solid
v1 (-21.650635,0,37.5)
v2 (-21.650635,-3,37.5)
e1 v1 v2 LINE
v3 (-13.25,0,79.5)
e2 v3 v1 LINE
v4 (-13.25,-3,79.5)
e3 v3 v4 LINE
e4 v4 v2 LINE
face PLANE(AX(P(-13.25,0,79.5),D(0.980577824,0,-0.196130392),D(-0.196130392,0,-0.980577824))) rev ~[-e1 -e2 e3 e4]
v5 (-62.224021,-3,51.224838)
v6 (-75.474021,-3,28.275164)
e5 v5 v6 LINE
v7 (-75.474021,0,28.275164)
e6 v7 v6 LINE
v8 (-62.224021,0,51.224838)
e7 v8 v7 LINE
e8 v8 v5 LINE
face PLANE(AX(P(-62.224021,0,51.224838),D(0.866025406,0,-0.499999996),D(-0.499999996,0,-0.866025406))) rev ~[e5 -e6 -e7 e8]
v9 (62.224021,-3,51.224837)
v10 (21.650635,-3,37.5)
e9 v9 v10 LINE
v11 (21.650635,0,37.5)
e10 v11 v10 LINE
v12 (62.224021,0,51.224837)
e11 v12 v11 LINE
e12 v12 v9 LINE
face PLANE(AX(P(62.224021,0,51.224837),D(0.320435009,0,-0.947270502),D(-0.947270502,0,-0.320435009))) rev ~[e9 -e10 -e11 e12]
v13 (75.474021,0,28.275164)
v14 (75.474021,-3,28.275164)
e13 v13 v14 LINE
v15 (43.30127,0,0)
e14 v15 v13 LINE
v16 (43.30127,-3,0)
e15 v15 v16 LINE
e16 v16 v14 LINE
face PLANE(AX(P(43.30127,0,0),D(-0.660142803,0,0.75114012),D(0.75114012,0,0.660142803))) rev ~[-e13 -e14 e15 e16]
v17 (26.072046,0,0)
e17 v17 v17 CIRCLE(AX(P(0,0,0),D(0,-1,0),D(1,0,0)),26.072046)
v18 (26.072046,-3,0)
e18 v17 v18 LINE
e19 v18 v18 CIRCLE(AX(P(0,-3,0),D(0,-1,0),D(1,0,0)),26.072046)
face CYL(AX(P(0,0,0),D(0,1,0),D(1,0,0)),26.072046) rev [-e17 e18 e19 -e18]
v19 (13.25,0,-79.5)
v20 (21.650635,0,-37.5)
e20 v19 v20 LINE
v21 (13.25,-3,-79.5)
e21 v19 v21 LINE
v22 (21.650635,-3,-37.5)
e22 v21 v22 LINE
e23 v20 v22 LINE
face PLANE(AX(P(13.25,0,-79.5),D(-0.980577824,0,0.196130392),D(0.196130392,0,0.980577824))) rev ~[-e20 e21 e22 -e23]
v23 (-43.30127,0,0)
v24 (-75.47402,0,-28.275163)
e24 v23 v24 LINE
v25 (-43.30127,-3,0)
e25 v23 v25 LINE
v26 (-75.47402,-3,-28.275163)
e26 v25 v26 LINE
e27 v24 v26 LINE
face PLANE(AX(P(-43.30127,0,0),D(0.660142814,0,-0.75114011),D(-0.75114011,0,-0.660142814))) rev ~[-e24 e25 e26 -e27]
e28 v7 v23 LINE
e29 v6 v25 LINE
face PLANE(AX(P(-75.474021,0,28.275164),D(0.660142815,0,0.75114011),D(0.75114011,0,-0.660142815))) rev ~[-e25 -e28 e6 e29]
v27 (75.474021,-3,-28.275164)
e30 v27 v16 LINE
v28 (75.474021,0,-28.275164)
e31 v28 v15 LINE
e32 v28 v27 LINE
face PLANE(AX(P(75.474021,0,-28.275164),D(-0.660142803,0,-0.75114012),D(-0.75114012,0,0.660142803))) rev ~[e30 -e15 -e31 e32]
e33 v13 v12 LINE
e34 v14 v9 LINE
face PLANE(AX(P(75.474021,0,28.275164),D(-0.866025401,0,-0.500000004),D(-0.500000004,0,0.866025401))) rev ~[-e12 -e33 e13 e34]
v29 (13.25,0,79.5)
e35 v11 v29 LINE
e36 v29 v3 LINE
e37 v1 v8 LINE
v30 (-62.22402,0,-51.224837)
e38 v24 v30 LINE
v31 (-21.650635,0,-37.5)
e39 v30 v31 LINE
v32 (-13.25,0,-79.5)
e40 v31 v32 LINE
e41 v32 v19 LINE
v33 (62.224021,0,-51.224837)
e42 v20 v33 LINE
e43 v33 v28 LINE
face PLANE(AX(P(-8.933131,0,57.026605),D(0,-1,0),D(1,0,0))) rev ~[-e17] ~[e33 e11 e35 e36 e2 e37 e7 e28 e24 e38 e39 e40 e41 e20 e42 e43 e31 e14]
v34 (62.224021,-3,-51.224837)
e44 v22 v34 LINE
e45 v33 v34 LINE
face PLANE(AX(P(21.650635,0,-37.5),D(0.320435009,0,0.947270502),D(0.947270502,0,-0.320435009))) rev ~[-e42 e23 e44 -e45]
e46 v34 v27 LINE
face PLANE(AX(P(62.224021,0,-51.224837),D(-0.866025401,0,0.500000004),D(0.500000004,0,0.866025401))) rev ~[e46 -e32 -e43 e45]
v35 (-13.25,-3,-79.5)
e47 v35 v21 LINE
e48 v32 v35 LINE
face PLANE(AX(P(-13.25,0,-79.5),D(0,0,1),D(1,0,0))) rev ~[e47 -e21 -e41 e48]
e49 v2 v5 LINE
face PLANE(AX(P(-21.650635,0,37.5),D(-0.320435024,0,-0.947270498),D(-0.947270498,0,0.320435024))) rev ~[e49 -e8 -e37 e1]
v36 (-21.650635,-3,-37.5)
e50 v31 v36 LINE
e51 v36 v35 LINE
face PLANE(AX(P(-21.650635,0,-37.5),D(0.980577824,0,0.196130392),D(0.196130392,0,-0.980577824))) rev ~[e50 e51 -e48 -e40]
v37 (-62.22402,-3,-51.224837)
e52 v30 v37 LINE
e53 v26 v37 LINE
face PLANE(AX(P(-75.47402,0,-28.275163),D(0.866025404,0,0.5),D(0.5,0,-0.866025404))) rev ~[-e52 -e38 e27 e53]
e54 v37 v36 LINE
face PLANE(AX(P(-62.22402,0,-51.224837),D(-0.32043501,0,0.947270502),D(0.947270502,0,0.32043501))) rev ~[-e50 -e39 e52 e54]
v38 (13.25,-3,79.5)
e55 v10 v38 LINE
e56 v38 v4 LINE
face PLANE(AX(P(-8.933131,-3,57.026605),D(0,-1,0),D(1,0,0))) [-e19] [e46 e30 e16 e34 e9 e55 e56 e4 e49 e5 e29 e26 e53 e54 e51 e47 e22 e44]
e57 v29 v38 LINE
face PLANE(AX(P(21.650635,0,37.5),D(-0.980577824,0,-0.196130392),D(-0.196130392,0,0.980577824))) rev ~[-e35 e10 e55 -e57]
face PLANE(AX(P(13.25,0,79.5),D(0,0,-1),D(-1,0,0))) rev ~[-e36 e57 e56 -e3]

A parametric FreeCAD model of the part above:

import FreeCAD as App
import Part
import Sketcher
from FreeCAD import Vector
Q = App.Units.Quantity

doc = App.newDocument("Part")
body = doc.addObject("PartDesign::Body", "Body")

sketch1 = body.newObject("Sketcher::SketchObject", "Sketch")
sketch1.AttachmentSupport = (doc.getObject("XZ_Plane"), [""])
sketch1.MapMode = "FlatFace"
sketch1.addGeometry(Part.LineSegment(Vector(-13.25, 79.5, 0), Vector(-21.650635, 37.5, 0)), False)
sketch1.addGeometry(Part.LineSegment(Vector(-21.650635, 37.5, 0), Vector(-62.224021, 51.224838, 0)), False)
sketch1.addGeometry(Part.LineSegment(Vector(-62.224021, 51.224838, 0), Vector(-75.474021, 28.275164, 0)), False)
sketch1.addGeometry(Part.LineSegment(Vector(-75.474021, 28.275164, 0), Vector(-43.30127, 0, 0)), False)
sketch1.addGeometry(Part.LineSegment(Vector(-43.30127, 0, 0), Vector(-75.47402, -28.275163, 0)), False)
sketch1.addGeometry(Part.LineSegment(Vector(-75.47402, -28.275163, 0), Vector(-62.22402, -51.224837, 0)), False)
sketch1.addGeometry(Part.LineSegment(Vector(-62.22402, -51.224837, 0), Vector(-21.650635, -37.5, 0)), False)
sketch1.addGeometry(Part.LineSegment(Vector(-21.650635, -37.5, 0), Vector(-13.25, -79.5, 0)), False)
sketch1.addGeometry(Part.LineSegment(Vector(-13.25, -79.5, 0), Vector(13.25, -79.5, 0)), False)
sketch1.addGeometry(Part.LineSegment(Vector(13.25, -79.5, 0), Vector(21.650635, -37.5, 0)), False)
sketch1.addGeometry(Part.LineSegment(Vector(21.650635, -37.5, 0), Vector(62.224021, -51.224837, 0)), False)
sketch1.addGeometry(Part.LineSegment(Vector(62.224021, -51.224837, 0), Vector(75.474021, -28.275164, 0)), False)
sketch1.addGeometry(Part.LineSegment(Vector(75.474021, -28.275164, 0), Vector(43.30127, 0, 0)), False)
sketch1.addGeometry(Part.LineSegment(Vector(43.30127, 0, 0), Vector(75.474021, 28.275164, 0)), False)
sketch1.addGeometry(Part.LineSegment(Vector(75.474021, 28.275164, 0), Vector(62.224021, 51.224837, 0)), False)
sketch1.addGeometry(Part.LineSegment(Vector(62.224021, 51.224837, 0), Vector(21.650635, 37.5, 0)), False)
sketch1.addGeometry(Part.LineSegment(Vector(21.650635, 37.5, 0), Vector(13.25, 79.5, 0)), False)
sketch1.addGeometry(Part.LineSegment(Vector(13.25, 79.5, 0), Vector(-13.25, 79.5, 0)), False)
sketch1.addGeometry(Part.Circle(Vector(0, 0, 0), Vector(0, 0, 1), 26.072046), False)
sketch1.addConstraint(Sketcher.Constraint("Coincident", 0, 2, 1, 1))
sketch1.addConstraint(Sketcher.Constraint("Coincident", 1, 2, 2, 1))
sketch1.addConstraint(Sketcher.Constraint("Coincident", 2, 2, 3, 1))
sketch1.addConstraint(Sketcher.Constraint("Coincident", 3, 2, 4, 1))
sketch1.addConstraint(Sketcher.Constraint("Coincident", 4, 2, 5, 1))
sketch1.addConstraint(Sketcher.Constraint("Coincident", 5, 2, 6, 1))
sketch1.addConstraint(Sketcher.Constraint("Coincident", 6, 2, 7, 1))
sketch1.addConstraint(Sketcher.Constraint("Coincident", 7, 2, 8, 1))
sketch1.addConstraint(Sketcher.Constraint("Coincident", 8, 2, 9, 1))
sketch1.addConstraint(Sketcher.Constraint("Coincident", 9, 2, 10, 1))
sketch1.addConstraint(Sketcher.Constraint("Coincident", 10, 2, 11, 1))
sketch1.addConstraint(Sketcher.Constraint("Coincident", 11, 2, 12, 1))
sketch1.addConstraint(Sketcher.Constraint("Coincident", 12, 2, 13, 1))
sketch1.addConstraint(Sketcher.Constraint("Coincident", 13, 2, 14, 1))
sketch1.addConstraint(Sketcher.Constraint("Coincident", 14, 2, 15, 1))
sketch1.addConstraint(Sketcher.Constraint("Coincident", 15, 2, 16, 1))
sketch1.addConstraint(Sketcher.Constraint("Coincident", 16, 2, 17, 1))
sketch1.addConstraint(Sketcher.Constraint("Coincident", 17, 2, 0, 1))
sketch1.addConstraint(Sketcher.Constraint("Horizontal", 8))
sketch1.addConstraint(Sketcher.Constraint("Horizontal", 17))
sketch1.addConstraint(Sketcher.Constraint("Coincident", 18, 3, -1, 1))
sketch1.addConstraint(Sketcher.Constraint("Symmetric", 0, 2, 9, 2, -1, 1))
sketch1.addConstraint(Sketcher.Constraint("Symmetric", 1, 2, 10, 2, -1, 1))
sketch1.addConstraint(Sketcher.Constraint("Symmetric", 2, 2, 11, 2, -1, 1))
sketch1.addConstraint(Sketcher.Constraint("Symmetric", 3, 2, 12, 2, -1, 1))
sketch1.addConstraint(Sketcher.Constraint("Symmetric", 4, 2, 13, 2, -1, 1))
sketch1.addConstraint(Sketcher.Constraint("Symmetric", 5, 2, 14, 2, -1, 1))
sketch1.addConstraint(Sketcher.Constraint("Symmetric", 6, 2, 15, 2, -1, 1))
sketch1.addConstraint(Sketcher.Constraint("Symmetric", 7, 2, 16, 2, -1, 1))
sketch1.addConstraint(Sketcher.Constraint("Symmetric", 6, 2, 9, 2, -2))
sketch1.addConstraint(Sketcher.Constraint("Symmetric", 5, 2, 10, 2, -2))
sketch1.addConstraint(Sketcher.Constraint("Symmetric", 4, 2, 11, 2, -2))
sketch1.addConstraint(Sketcher.Constraint("PointOnObject", 3, 2, -1))
sketch1.addConstraint(Sketcher.Constraint("Parallel", 0, 9))
sketch1.addConstraint(Sketcher.Constraint("Vertical", 8, 2, 16, 2))
sketch1.addConstraint(Sketcher.Constraint("Equal", 0, 1))
sketch1.addConstraint(Sketcher.Constraint("Equal", 1, 3))
sketch1.addConstraint(Sketcher.Constraint("Angle", 2, Q("-120 deg")))
sketch1.addConstraint(Sketcher.Constraint("DistanceX", 8, 1, 8, 2, Q("26.5 mm")))
sketch1.addConstraint(Sketcher.Constraint("DistanceY", 6, 2, 0, 2, Q("75 mm")))
sketch1.addConstraint(Sketcher.Constraint("DistanceY", 7, 2, 6, 2, Q("42 mm")))
sketch1.addConstraint(Sketcher.Constraint("Distance", 2, Q("26.5 mm")))
sketch1.addConstraint(Sketcher.Constraint("DistanceY", 4, 2, 1, 2, Q("79.500001 mm")))
sketch1.addConstraint(Sketcher.Constraint("Diameter", 18, Q("52.144092 mm")))
sketch1.addConstraint(Sketcher.Constraint("Distance", 0, Q("42.831888 mm")))
pad1 = body.newObject("PartDesign::Pad", "Pad")
pad1.Profile = sketch1
pad1.Length = 3

doc.recompute()
